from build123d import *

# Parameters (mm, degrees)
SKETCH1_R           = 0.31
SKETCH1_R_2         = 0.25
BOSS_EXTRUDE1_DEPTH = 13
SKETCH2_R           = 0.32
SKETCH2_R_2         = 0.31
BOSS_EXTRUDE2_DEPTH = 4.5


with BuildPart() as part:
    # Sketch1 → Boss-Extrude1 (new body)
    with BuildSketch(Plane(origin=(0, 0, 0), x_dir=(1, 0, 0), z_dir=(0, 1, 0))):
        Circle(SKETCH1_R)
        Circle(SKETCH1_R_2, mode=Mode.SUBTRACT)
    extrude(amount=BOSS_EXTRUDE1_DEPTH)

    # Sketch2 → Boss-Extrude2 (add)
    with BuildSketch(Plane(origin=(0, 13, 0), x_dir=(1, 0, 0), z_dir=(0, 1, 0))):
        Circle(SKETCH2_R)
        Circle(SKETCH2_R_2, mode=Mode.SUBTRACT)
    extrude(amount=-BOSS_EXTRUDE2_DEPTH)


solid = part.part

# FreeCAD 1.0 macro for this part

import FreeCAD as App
import Part
import Sketcher

V = App.Vector
Q = App.Units.Quantity

doc = App.newDocument("Part")
params = doc.addObject("Spreadsheet::Sheet", "Params")
for row, (alias, value) in enumerate([
    ("sketch1_diameter", "0.5 mm"),
    ("sketch1_diameter2", "0.62 mm"),
    ("pad1_length", "13 mm"),
    ("sketch2_diameter", "0.64 mm"),
    ("sketch2_diameter2", "0.62 mm"),
    ("pad2_length", "4.5 mm"),
], start=1):
    params.set(f"A{row}", alias)
    params.set(f"B{row}", "=" + value)
    params.setAlias(f"B{row}", alias)

body = doc.addObject("PartDesign::Body", "Body")

sketch1 = doc.addObject("Sketcher::SketchObject", "Sketch")
body.addObject(sketch1)
sketch1.AttachmentSupport = (doc.XZ_Plane, [""])
sketch1.MapMode = "FlatFace"
sketch1.addGeometry([
    Part.Circle(V(0, 0, 0), V(0, 0, 1), 0.31),
    Part.Circle(V(0, 0, 0), V(0, 0, 1), 0.25),
], False)
sketch1.addConstraint([
    Sketcher.Constraint("Coincident", 0, 3, -1, 1),
    Sketcher.Constraint("Coincident", 1, 3, -1, 1),
    Sketcher.Constraint("Diameter", 1, Q("0.5 mm")),
    Sketcher.Constraint("Diameter", 0, Q("0.62 mm")),
])
sketch1.setExpression("Constraints[2]", "Params.sketch1_diameter")
sketch1.setExpression("Constraints[3]", "Params.sketch1_diameter2")
pad1 = doc.addObject("PartDesign::Pad", "Pad")
body.addObject(pad1)
pad1.Profile = sketch1
pad1.setExpression("Length", "Params.pad1_length")
pad1.Reversed = True

sketch2 = doc.addObject("Sketcher::SketchObject", "Sketch001")
body.addObject(sketch2)
sketch2.AttachmentSupport = (doc.XZ_Plane, [""])
sketch2.MapMode = "FlatFace"
sketch2.AttachmentOffset = App.Placement(V(0, 0, -13), App.Rotation())
sketch2.addGeometry([
    Part.Circle(V(0, 0, 0), V(0, 0, 1), 0.32),
    Part.Circle(V(0, 0, 0), V(0, 0, 1), 0.31),
], False)
sketch2.addConstraint([
    Sketcher.Constraint("Coincident", 0, 3, -1, 1),
    Sketcher.Constraint("Coincident", 1, 3, -1, 1),
    Sketcher.Constraint("Diameter", 0, Q("0.64 mm")),
    Sketcher.Constraint("Diameter", 1, Q("0.62 mm")),
])
sketch2.setExpression("Constraints[2]", "Params.sketch2_diameter")
sketch2.setExpression("Constraints[3]", "Params.sketch2_diameter2")
pad2 = doc.addObject("PartDesign::Pad", "Pad001")
body.addObject(pad2)
pad2.Profile = sketch2
pad2.setExpression("Length", "Params.pad2_length")

doc.recompute()
